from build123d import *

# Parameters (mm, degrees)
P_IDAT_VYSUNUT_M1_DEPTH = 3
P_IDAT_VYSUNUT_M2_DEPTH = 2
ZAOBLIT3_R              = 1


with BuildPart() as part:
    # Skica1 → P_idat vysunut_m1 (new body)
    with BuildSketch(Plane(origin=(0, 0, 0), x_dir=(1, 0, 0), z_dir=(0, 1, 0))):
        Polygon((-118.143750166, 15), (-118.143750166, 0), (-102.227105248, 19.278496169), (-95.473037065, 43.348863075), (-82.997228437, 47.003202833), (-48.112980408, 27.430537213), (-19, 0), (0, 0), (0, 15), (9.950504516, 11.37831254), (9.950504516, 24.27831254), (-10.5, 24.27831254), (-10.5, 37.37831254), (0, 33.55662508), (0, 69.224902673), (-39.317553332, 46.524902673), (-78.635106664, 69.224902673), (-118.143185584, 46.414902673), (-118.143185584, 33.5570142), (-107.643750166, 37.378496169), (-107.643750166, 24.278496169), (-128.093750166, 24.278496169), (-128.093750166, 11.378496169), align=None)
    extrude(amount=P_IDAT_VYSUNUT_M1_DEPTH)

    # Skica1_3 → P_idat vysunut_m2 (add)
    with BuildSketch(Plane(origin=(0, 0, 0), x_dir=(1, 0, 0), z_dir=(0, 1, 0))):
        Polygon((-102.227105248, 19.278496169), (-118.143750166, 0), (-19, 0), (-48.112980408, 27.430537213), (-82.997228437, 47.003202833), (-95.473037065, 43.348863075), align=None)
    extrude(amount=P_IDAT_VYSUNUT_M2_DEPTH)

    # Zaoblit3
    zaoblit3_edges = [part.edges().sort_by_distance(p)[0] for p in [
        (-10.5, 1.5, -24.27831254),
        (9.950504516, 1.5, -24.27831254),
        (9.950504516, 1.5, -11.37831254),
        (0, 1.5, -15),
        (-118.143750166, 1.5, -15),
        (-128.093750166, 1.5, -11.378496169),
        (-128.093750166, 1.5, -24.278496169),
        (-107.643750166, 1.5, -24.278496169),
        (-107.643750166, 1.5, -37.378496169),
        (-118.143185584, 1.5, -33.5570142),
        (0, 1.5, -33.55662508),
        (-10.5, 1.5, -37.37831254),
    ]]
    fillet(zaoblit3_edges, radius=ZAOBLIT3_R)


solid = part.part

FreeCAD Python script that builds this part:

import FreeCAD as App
import Part
import Sketcher

V = App.Vector
Q = App.Units.Quantity


def edges_at(feature, points):
    """Names of the edges that pass closest to the given points."""
    edges = feature.Shape.Edges
    near = lambda p: min(range(len(edges)), key=lambda i: edges[i].distToShape(Part.Vertex(*p))[0])
    return sorted({f"Edge{near(p) + 1}" for p in points})

doc = App.newDocument("Part")
body = doc.addObject("PartDesign::Body", "Body")

# Sketch on XZ plane
sketch1 = body.newObject("Sketcher::SketchObject", "Sketch")
sketch1.AttachmentSupport = (doc.getObject("XZ_Plane"), [""])
sketch1.MapMode = "FlatFace"
sketch1.addGeometry(Part.LineSegment(V(-118, -15, 0), V(-118, 0, 0)), False)
sketch1.addGeometry(Part.LineSegment(V(-118, 0, 0), V(-102, -19, 0)), False)
sketch1.addGeometry(Part.LineSegment(V(-102, -19, 0), V(-95, -43, 0)), False)
sketch1.addGeometry(Part.LineSegment(V(-95, -43, 0), V(-83, -47, 0)), False)
sketch1.addGeometry(Part.LineSegment(V(-83, -47, 0), V(-48, -27, 0)), False)
sketch1.addGeometry(Part.LineSegment(V(-48, -27, 0), V(-19, 0, 0)), False)
sketch1.addGeometry(Part.LineSegment(V(-19, 0, 0), V(0, 0, 0)), False)
sketch1.addGeometry(Part.LineSegment(V(0, 0, 0), V(0, -15, 0)), False)
sketch1.addGeometry(Part.LineSegment(V(0, -15, 0), V(10, -11, 0)), False)
sketch1.addGeometry(Part.LineSegment(V(10, -11, 0), V(10, -24, 0)), False)
sketch1.addGeometry(Part.LineSegment(V(10, -24, 0), V(-10, -24, 0)), False)
sketch1.addGeometry(Part.LineSegment(V(-10, -24, 0), V(-10, -37, 0)), False)
sketch1.addGeometry(Part.LineSegment(V(-10, -37, 0), V(0, -34, 0)), False)
sketch1.addGeometry(Part.LineSegment(V(0, -34, 0), V(0, -69, 0)), False)
sketch1.addGeometry(Part.LineSegment(V(0, -69, 0), V(-39, -47, 0)), False)
sketch1.addGeometry(Part.LineSegment(V(-39, -47, 0), V(-79, -69, 0)), False)
sketch1.addGeometry(Part.LineSegment(V(-79, -69, 0), V(-118, -46, 0)), False)
sketch1.addGeometry(Part.LineSegment(V(-118, -46, 0), V(-118, -34, 0)), False)
sketch1.addGeometry(Part.LineSegment(V(-118, -34, 0), V(-108, -37, 0)), False)
sketch1.addGeometry(Part.LineSegment(V(-108, -37, 0), V(-108, -24, 0)), False)
sketch1.addGeometry(Part.LineSegment(V(-108, -24, 0), V(-128, -24, 0)), False)
sketch1.addGeometry(Part.LineSegment(V(-128, -24, 0), V(-128, -11, 0)), False)
sketch1.addGeometry(Part.LineSegment(V(-128, -11, 0), V(-118, -15, 0)), False)
sketch1.addConstraint(Sketcher.Constraint("Coincident", 0, 2, 1, 1))
sketch1.addConstraint(Sketcher.Constraint("Coincident", 1, 2, 2, 1))
sketch1.addConstraint(Sketcher.Constraint("Coincident", 2, 2, 3, 1))
sketch1.addConstraint(Sketcher.Constraint("Coincident", 3, 2, 4, 1))
sketch1.addConstraint(Sketcher.Constraint("Coincident", 4, 2, 5, 1))
sketch1.addConstraint(Sketcher.Constraint("Coincident", 5, 2, 6, 1))
sketch1.addConstraint(Sketcher.Constraint("Coincident", 6, 2, 7, 1))
sketch1.addConstraint(Sketcher.Constraint("Coincident", 7, 2, 8, 1))
sketch1.addConstraint(Sketcher.Constraint("Coincident", 8, 2, 9, 1))
sketch1.addConstraint(Sketcher.Constraint("Coincident", 9, 2, 10, 1))
sketch1.addConstraint(Sketcher.Constraint("Coincident", 10, 2, 11, 1))
sketch1.addConstraint(Sketcher.Constraint("Coincident", 11, 2, 12, 1))
sketch1.addConstraint(Sketcher.Constraint("Coincident", 12, 2, 13, 1))
sketch1.addConstraint(Sketcher.Constraint("Coincident", 13, 2, 14, 1))
sketch1.addConstraint(Sketcher.Constraint("Coincident", 14, 2, 15, 1))
sketch1.addConstraint(Sketcher.Constraint("Coincident", 15, 2, 16, 1))
sketch1.addConstraint(Sketcher.Constraint("Coincident", 16, 2, 17, 1))
sketch1.addConstraint(Sketcher.Constraint("Coincident", 17, 2, 18, 1))
sketch1.addConstraint(Sketcher.Constraint("Coincident", 18, 2, 19, 1))
sketch1.addConstraint(Sketcher.Constraint("Coincident", 19, 2, 20, 1))
sketch1.addConstraint(Sketcher.Constraint("Coincident", 20, 2, 21, 1))
sketch1.addConstraint(Sketcher.Constraint("Coincident", 21, 2, 22, 1))
sketch1.addConstraint(Sketcher.Constraint("Coincident", 22, 2, 0, 1))
sketch1.addConstraint(Sketcher.Constraint("Vertical", 0))
sketch1.addConstraint(Sketcher.Constraint("Horizontal", 6))
sketch1.addConstraint(Sketcher.Constraint("Vertical", 7))
sketch1.addConstraint(Sketcher.Constraint("Vertical", 9))
sketch1.addConstraint(Sketcher.Constraint("Horizontal", 10))
sketch1.addConstraint(Sketcher.Constraint("Vertical", 11))
sketch1.addConstraint(Sketcher.Constraint("Vertical", 13))
sketch1.addConstraint(Sketcher.Constraint("Vertical", 17))
sketch1.addConstraint(Sketcher.Constraint("Vertical", 19))
sketch1.addConstraint(Sketcher.Constraint("Horizontal", 20))
sketch1.addConstraint(Sketcher.Constraint("Vertical", 21))
sketch1.addConstraint(Sketcher.Constraint("Coincident", 6, 2, -1, 1))
sketch1.addConstraint(Sketcher.Constraint("PointOnObject", 0, 2, -1))
sketch1.addConstraint(Sketcher.Constraint("PointOnObject", 12, 2, -2))
sketch1.addConstraint(Sketcher.Constraint("Parallel", 8, 12))
sketch1.addConstraint(Sketcher.Constraint("Parallel", 14, 16))
sketch1.addConstraint(Sketcher.Constraint("Parallel", 18, 22))
sketch1.addConstraint(Sketcher.Constraint("Horizontal", 13, 2, 15, 2))
sketch1.addConstraint(Sketcher.Constraint("Horizontal", 7, 2, 22, 2))
sketch1.addConstraint(Sketcher.Constraint("Equal", 11, 19))
sketch1.addConstraint(Sketcher.Constraint("Equal", 9, 21))
sketch1.addConstraint(Sketcher.Constraint("Equal", 1, 2))
sketch1.addConstraint(Sketcher.Constraint("Equal", 4, 5))
sketch1.addConstraint(Sketcher.Constraint("Equal", 14, 15))
sketch1.addConstraint(Sketcher.Constraint("DistanceX", 6, 1, 6, 2, 19.0))
sketch1.addConstraint(Sketcher.Constraint("DistanceY", 0, 1, 0, 2, 15.0))
sketch1.addConstraint(Sketcher.Constraint("Angle", 8, Q("20 deg")))
sketch1.addConstraint(Sketcher.Constraint("Angle", 14, Q("150 deg")))
sketch1.addConstraint(Sketcher.Constraint("Angle", 18, Q("-20 deg")))
sketch1.addConstraint(Sketcher.Constraint("Distance", 1, 25.0))
sketch1.addConstraint(Sketcher.Constraint("Distance", 3, 13.0))
sketch1.addConstraint(Sketcher.Constraint("Distance", 4, 40.0))
sketch1.addConstraint(Sketcher.Constraint("DistanceY", 9, 2, 9, 1, 12.9))
sketch1.addConstraint(Sketcher.Constraint("DistanceY", 11, 2, 11, 1, 13.1))
sketch1.addConstraint(Sketcher.Constraint("DistanceY", 19, 2, 1, 2, 5.0))
sketch1.addConstraint(Sketcher.Constraint("Distance", 14, 45.4))
sketch1.addConstraint(Sketcher.Constraint("DistanceX", 20, 2, 20, 1, 20.45))
sketch1.addConstraint(Sketcher.Constraint("DistanceX", 10, 2, -1, 1, 10.5))
sketch1.addConstraint(Sketcher.Constraint("DistanceX", 22, 2, 19, 2, 10.5))
sketch1.addConstraint(Sketcher.Constraint("Distance", 16, 45.62))
sketch1.addConstraint(Sketcher.Constraint("DistanceX", 1, 2, 15, 2, 23.591999))
sketch1.addConstraint(Sketcher.Constraint("DistanceY", 17, 1, 17, 2, 12.857888))
sketch1.addConstraint(Sketcher.Constraint("DistanceY", 3, 2, 14, 2, 0.4783))
sketch1.addConstraint(Sketcher.Constraint("DistanceX", 10, 2, 10, 1, 20.450505))
sketch1.addConstraint(Sketcher.Constraint("DistanceX", 3, 2, -1, 1, 82.997228))
pad1 = body.newObject("PartDesign::Pad", "Pad")
pad1.Profile = sketch1
pad1.Length = 3
pad1.Reversed = True

# Sketch on XZ plane
sketch2 = body.newObject("Sketcher::SketchObject", "Sketch001")
sketch2.AttachmentSupport = (doc.getObject("XZ_Plane"), [""])
sketch2.MapMode = "FlatFace"
sketch2.addGeometry(Part.LineSegment(V(-102, -19, 0), V(-118, 0, 0)), False)
sketch2.addGeometry(Part.LineSegment(V(-118, 0, 0), V(-19, 0, 0)), False)
sketch2.addGeometry(Part.LineSegment(V(-19, 0, 0), V(-48, -27, 0)), False)
sketch2.addGeometry(Part.LineSegment(V(-48, -27, 0), V(-83, -47, 0)), False)
sketch2.addGeometry(Part.LineSegment(V(-83, -47, 0), V(-95, -43, 0)), False)
sketch2.addGeometry(Part.LineSegment(V(-95, -43, 0), V(-102, -19, 0)), False)
sketch2.addConstraint(Sketcher.Constraint("Coincident", 0, 2, 1, 1))
sketch2.addConstraint(Sketcher.Constraint("Coincident", 1, 2, 2, 1))
sketch2.addConstraint(Sketcher.Constraint("Coincident", 2, 2, 3, 1))
sketch2.addConstraint(Sketcher.Constraint("Coincident", 3, 2, 4, 1))
sketch2.addConstraint(Sketcher.Constraint("Coincident", 4, 2, 5, 1))
sketch2.addConstraint(Sketcher.Constraint("Coincident", 5, 2, 0, 1))
sketch2.addConstraint(Sketcher.Constraint("Horizontal", 1))
sketch2.addConstraint(Sketcher.Constraint("PointOnObject", 0, 2, -1))
sketch2.addConstraint(Sketcher.Constraint("Equal", 2, 3))
sketch2.addConstraint(Sketcher.Constraint("Equal", 0, 5))
sketch2.addConstraint(Sketcher.Constraint("Distance", 0, 25.0))
sketch2.addConstraint(Sketcher.Constraint("Distance", 2, 40.0))
sketch2.addConstraint(Sketcher.Constraint("Distance", 4, 13.0))
sketch2.addConstraint(Sketcher.Constraint("DistanceX", 1, 2, -1, 1, 19.0))
sketch2.addConstraint(Sketcher.Constraint("DistanceX", 1, 1, 1, 2, 99.14375))
sketch2.addConstraint(Sketcher.Constraint("DistanceX", 2, 2, -1, 1, 48.11298))
sketch2.addConstraint(Sketcher.Constraint("DistanceX", 3, 2, -1, 1, 82.997228))
sketch2.addConstraint(Sketcher.Constraint("DistanceX", 4, 2, 3, 2, 12.475809))
pad2 = body.newObject("PartDesign::Pad", "Pad001")
pad2.Profile = sketch2
pad2.Length = 2
pad2.Reversed = True
doc.recompute()

fillet = body.newObject("PartDesign::Fillet", "Fillet")
fillet.Base = (pad2, edges_at(pad2, [
    (-10.5, 1.5, -24.278),
    (9.951, 1.5, -24.278),
    (9.951, 1.5, -11.378),
    (0, 1.5, -15),
    (-118.144, 1.5, -15),
    (-128.094, 1.5, -11.378),
    (-128.094, 1.5, -24.278),
    (-107.644, 1.5, -24.278),
    (-107.644, 1.5, -37.378),
    (-118.143, 1.5, -33.557),
    (0, 1.5, -33.557),
    (-10.5, 1.5, -37.378),
]))
fillet.Radius = 1

doc.recompute()
